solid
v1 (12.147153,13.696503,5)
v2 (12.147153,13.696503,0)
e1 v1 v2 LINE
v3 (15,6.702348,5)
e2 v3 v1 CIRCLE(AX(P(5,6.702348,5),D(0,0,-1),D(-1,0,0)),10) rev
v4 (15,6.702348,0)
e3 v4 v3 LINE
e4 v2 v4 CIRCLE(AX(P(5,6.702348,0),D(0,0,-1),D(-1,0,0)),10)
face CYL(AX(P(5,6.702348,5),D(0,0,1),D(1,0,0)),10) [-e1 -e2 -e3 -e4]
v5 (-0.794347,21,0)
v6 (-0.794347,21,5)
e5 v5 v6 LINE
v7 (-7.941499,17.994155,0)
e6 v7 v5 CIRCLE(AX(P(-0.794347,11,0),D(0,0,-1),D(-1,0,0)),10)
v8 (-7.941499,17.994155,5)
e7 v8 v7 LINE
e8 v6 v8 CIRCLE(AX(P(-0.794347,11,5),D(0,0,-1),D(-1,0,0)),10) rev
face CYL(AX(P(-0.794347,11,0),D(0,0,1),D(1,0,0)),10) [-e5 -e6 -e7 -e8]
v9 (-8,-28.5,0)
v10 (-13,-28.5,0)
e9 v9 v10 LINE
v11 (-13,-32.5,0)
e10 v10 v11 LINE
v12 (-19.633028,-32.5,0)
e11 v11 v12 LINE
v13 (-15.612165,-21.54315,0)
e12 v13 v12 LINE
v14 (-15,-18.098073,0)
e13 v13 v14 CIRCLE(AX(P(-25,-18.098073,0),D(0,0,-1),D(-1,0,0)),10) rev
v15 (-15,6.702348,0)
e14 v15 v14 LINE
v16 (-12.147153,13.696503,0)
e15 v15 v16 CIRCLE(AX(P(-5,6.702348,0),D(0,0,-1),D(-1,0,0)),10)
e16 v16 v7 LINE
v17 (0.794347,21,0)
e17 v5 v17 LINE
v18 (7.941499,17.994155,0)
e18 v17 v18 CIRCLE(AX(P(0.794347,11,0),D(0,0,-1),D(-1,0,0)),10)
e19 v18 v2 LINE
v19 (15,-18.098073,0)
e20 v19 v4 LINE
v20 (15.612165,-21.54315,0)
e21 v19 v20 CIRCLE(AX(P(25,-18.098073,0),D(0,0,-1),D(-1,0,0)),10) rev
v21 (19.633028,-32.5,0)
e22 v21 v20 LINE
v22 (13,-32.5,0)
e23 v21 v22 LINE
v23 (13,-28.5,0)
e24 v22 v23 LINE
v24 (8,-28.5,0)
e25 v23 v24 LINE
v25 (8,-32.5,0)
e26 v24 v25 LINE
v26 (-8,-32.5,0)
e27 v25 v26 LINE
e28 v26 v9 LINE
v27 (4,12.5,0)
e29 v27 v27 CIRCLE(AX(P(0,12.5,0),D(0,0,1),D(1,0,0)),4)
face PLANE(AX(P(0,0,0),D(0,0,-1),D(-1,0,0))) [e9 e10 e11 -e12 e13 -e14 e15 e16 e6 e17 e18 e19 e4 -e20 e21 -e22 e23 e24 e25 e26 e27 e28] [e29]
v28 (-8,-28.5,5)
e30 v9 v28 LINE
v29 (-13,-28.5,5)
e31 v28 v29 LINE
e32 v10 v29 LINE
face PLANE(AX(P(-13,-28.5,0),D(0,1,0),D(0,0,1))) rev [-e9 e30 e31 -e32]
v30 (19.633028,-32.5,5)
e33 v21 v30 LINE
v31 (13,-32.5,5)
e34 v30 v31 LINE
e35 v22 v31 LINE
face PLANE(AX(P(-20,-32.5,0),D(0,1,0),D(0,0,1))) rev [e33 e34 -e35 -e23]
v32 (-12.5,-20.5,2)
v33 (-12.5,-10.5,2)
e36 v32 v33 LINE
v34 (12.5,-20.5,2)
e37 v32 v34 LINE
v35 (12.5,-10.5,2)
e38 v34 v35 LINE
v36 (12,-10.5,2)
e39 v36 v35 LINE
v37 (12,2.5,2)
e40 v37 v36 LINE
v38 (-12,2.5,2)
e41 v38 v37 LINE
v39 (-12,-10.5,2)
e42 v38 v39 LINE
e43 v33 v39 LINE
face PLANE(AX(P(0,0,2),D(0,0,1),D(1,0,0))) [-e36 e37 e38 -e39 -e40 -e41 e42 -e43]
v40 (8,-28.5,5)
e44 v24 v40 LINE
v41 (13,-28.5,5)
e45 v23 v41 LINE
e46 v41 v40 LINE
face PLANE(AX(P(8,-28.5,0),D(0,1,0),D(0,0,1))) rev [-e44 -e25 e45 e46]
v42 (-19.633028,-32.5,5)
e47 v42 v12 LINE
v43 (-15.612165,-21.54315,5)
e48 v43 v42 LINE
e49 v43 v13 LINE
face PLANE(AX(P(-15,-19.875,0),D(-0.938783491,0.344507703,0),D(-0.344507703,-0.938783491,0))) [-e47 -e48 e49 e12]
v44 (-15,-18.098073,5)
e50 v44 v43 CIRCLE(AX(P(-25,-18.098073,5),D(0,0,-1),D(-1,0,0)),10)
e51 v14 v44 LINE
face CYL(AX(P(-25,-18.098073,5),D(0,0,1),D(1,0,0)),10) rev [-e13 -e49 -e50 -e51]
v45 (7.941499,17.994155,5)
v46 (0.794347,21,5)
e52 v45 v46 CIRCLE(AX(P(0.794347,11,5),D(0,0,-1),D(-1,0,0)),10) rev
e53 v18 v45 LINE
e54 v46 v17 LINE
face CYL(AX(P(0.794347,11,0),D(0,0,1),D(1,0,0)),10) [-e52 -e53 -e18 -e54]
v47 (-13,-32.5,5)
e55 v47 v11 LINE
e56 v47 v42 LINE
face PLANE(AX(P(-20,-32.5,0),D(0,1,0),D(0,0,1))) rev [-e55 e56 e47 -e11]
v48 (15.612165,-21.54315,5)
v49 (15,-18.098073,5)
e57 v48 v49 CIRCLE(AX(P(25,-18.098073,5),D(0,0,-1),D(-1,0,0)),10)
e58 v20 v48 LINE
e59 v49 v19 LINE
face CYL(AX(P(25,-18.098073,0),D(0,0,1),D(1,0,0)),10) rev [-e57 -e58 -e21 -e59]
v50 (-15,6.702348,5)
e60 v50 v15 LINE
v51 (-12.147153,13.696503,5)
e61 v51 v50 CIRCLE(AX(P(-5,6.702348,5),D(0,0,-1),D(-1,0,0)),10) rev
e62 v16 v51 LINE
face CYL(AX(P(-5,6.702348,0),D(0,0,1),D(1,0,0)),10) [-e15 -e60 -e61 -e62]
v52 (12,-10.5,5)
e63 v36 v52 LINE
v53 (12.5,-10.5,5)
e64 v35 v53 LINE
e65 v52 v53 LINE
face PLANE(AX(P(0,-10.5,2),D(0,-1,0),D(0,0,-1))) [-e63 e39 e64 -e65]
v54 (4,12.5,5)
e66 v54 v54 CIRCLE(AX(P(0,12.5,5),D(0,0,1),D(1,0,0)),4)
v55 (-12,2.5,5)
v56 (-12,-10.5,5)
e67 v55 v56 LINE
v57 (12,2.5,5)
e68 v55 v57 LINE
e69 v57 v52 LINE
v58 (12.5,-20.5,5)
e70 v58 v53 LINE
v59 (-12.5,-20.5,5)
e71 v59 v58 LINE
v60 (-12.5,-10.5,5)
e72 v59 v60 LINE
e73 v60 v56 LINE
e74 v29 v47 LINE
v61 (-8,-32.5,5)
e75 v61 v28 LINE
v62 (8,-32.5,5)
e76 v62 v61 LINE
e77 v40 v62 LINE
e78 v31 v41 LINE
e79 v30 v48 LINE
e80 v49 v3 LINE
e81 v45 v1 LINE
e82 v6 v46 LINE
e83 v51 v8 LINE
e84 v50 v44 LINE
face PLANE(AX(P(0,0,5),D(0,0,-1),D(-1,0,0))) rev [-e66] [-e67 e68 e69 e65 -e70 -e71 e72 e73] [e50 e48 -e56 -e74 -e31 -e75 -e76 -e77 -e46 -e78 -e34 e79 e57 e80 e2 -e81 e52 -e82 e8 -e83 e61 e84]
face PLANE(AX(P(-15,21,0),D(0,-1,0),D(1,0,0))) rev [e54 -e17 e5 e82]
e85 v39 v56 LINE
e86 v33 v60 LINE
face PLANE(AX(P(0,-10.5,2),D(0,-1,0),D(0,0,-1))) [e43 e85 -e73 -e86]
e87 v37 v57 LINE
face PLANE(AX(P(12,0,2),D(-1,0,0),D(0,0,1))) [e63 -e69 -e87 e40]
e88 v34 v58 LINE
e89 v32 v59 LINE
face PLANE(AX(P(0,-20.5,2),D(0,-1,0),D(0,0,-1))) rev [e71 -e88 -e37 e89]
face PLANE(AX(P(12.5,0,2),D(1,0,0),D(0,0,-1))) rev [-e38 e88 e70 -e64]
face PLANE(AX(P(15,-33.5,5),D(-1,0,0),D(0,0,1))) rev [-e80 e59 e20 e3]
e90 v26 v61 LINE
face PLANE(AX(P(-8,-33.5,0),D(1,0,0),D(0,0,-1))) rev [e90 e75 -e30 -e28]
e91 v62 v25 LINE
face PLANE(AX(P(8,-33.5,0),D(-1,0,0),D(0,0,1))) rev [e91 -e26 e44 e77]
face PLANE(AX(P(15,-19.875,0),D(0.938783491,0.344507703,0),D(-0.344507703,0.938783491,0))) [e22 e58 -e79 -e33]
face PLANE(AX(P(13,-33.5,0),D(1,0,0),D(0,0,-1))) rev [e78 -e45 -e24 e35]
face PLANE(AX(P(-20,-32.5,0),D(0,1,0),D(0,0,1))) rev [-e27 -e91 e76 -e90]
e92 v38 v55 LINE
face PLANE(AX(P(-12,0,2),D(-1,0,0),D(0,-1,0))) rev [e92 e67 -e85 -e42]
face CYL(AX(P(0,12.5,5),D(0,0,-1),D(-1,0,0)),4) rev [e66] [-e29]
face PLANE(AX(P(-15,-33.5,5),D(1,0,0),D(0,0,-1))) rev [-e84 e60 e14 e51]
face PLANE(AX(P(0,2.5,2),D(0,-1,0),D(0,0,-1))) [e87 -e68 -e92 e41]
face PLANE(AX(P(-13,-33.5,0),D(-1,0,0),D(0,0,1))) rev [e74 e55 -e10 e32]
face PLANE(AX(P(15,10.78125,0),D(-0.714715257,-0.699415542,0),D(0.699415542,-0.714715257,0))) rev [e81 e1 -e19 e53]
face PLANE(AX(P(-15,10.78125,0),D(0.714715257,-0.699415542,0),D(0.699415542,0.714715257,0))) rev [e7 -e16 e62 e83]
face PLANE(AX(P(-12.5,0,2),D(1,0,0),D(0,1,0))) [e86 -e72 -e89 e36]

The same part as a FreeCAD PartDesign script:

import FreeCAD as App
import Part
import Sketcher

V = App.Vector
Q = App.Units.Quantity


def edges_at(feature, points):
    """Names of the edges that pass closest to the given points."""
    edges = feature.Shape.Edges
    near = lambda p: min(range(len(edges)), key=lambda i: edges[i].distToShape(Part.Vertex(*p))[0])
    return sorted({f"Edge{near(p) + 1}" for p in points})

doc = App.newDocument("Part")
body = doc.addObject("PartDesign::Body", "Body")

sketch1 = body.newObject("Sketcher::SketchObject", "Sketch")
sketch1.AttachmentSupport = (doc.getObject("XY_Plane"), [""])
sketch1.MapMode = "FlatFace"
sketch1.addGeometry(Part.LineSegment(V(-15, 33.5, 0), V(-15, -33.5, 0)), False)
sketch1.addGeometry(Part.LineSegment(V(-15, -33.5, 0), V(15, -33.5, 0)), False)
sketch1.addGeometry(Part.LineSegment(V(15, -33.5, 0), V(15, 33.5, 0)), False)
sketch1.addGeometry(Part.LineSegment(V(15, 33.5, 0), V(-15, 33.5, 0)), False)
sketch1.addGeometry(Part.Circle(V(0, 12.5, 0), V(0, 0, 1), 4), False)
sketch1.addConstraint(Sketcher.Constraint("Coincident", 0, 2, 1, 1))
sketch1.addConstraint(Sketcher.Constraint("Coincident", 1, 2, 2, 1))
sketch1.addConstraint(Sketcher.Constraint("Coincident", 2, 2, 3, 1))
sketch1.addConstraint(Sketcher.Constraint("Coincident", 3, 2, 0, 1))
sketch1.addConstraint(Sketcher.Constraint("Vertical", 0))
sketch1.addConstraint(Sketcher.Constraint("Horizontal", 1))
sketch1.addConstraint(Sketcher.Constraint("Vertical", 2))
sketch1.addConstraint(Sketcher.Constraint("Horizontal", 3))
sketch1.addConstraint(Sketcher.Constraint("Symmetric", 0, 2, 2, 2, -1, 1))
sketch1.addConstraint(Sketcher.Constraint("PointOnObject", 4, 3, -2))
sketch1.addConstraint(Sketcher.Constraint("Diameter", 4, Q("8 mm")))
sketch1.addConstraint(Sketcher.Constraint("DistanceX", 1, 1, 1, 2, Q("30 mm")))
sketch1.addConstraint(Sketcher.Constraint("DistanceY", 0, 2, 0, 1, Q("67 mm")))
sketch1.addConstraint(Sketcher.Constraint("DistanceY", 0, 2, 4, 3, Q("46 mm")))
pad1 = body.newObject("PartDesign::Pad", "Pad")
pad1.Profile = sketch1
pad1.Length = 5

sketch2 = body.newObject("Sketcher::SketchObject", "Sketch001")
sketch2.AttachmentSupport = (doc.getObject("XY_Plane"), [""])
sketch2.MapMode = "FlatFace"
sketch2.AttachmentOffset = App.Placement(V(0, 0, 5), App.Rotation())
sketch2.addGeometry(Part.LineSegment(V(-15, 33.5, 0), V(-15, 21, 0)), False)
sketch2.addGeometry(Part.LineSegment(V(-15, 21, 0), V(15, 21, 0)), False)
sketch2.addGeometry(Part.LineSegment(V(15, 21, 0), V(15, 33.5, 0)), False)
sketch2.addGeometry(Part.LineSegment(V(15, 33.5, 0), V(-15, 33.5, 0)), False)
sketch2.addConstraint(Sketcher.Constraint("Coincident", 0, 2, 1, 1))
sketch2.addConstraint(Sketcher.Constraint("Coincident", 1, 2, 2, 1))
sketch2.addConstraint(Sketcher.Constraint("Coincident", 2, 2, 3, 1))
sketch2.addConstraint(Sketcher.Constraint("Coincident", 3, 2, 0, 1))
sketch2.addConstraint(Sketcher.Constraint("Vertical", 0))
sketch2.addConstraint(Sketcher.Constraint("Horizontal", 1))
sketch2.addConstraint(Sketcher.Constraint("Vertical", 2))
sketch2.addConstraint(Sketcher.Constraint("Horizontal", 3))
sketch2.addConstraint(Sketcher.Constraint("DistanceX", 1, 1, 1, 2, Q("30 mm")))
sketch2.addConstraint(Sketcher.Constraint("DistanceY", 0, 2, 0, 1, Q("12.5 mm")))
sketch2.addConstraint(Sketcher.Constraint("DistanceX", 0, 2, -1, 1, Q("15 mm")))
sketch2.addConstraint(Sketcher.Constraint("DistanceY", -1, 1, 0, 2, Q("21 mm")))
pocket1 = body.newObject("PartDesign::Pocket", "Pocket")
pocket1.Profile = sketch2
pocket1.Length = 5

sketch3 = body.newObject("Sketcher::SketchObject", "Sketch002")
sketch3.AttachmentSupport = (doc.getObject("XY_Plane"), [""])
sketch3.MapMode = "FlatFace"
sketch3.AttachmentOffset = App.Placement(V(0, 0, 5), App.Rotation())
sketch3.addGeometry(Part.LineSegment(V(-13, -28.5, 0), V(-13, -33.5, 0)), False)
sketch3.addGeometry(Part.LineSegment(V(-13, -33.5, 0), V(-8, -33.5, 0)), False)
sketch3.addGeometry(Part.LineSegment(V(-8, -33.5, 0), V(-8, -28.5, 0)), False)
sketch3.addGeometry(Part.LineSegment(V(-8, -28.5, 0), V(-13, -28.5, 0)), False)
sketch3.addGeometry(Part.LineSegment(V(8, -28.5, 0), V(8, -33.5, 0)), False)
sketch3.addGeometry(Part.LineSegment(V(8, -33.5, 0), V(13, -33.5, 0)), False)
sketch3.addGeometry(Part.LineSegment(V(13, -33.5, 0), V(13, -28.5, 0)), False)
sketch3.addGeometry(Part.LineSegment(V(13, -28.5, 0), V(8, -28.5, 0)), False)
sketch3.addConstraint(Sketcher.Constraint("Coincident", 0, 2, 1, 1))
sketch3.addConstraint(Sketcher.Constraint("Coincident", 1, 2, 2, 1))
sketch3.addConstraint(Sketcher.Constraint("Coincident", 2, 2, 3, 1))
sketch3.addConstraint(Sketcher.Constraint("Coincident", 3, 2, 0, 1))
sketch3.addConstraint(Sketcher.Constraint("Coincident", 4, 2, 5, 1))
sketch3.addConstraint(Sketcher.Constraint("Coincident", 5, 2, 6, 1))
sketch3.addConstraint(Sketcher.Constraint("Coincident", 6, 2, 7, 1))
sketch3.addConstraint(Sketcher.Constraint("Coincident", 7, 2, 4, 1))
sketch3.addConstraint(Sketcher.Constraint("Vertical", 0))
sketch3.addConstraint(Sketcher.Constraint("Horizontal", 1))
sketch3.addConstraint(Sketcher.Constraint("Vertical", 2))
sketch3.addConstraint(Sketcher.Constraint("Horizontal", 3))
sketch3.addConstraint(Sketcher.Constraint("Vertical", 4))
sketch3.addConstraint(Sketcher.Constraint("Horizontal", 5))
sketch3.addConstraint(Sketcher.Constraint("Vertical", 6))
sketch3.addConstraint(Sketcher.Constraint("Horizontal", 7))
sketch3.addConstraint(Sketcher.Constraint("Symmetric", 1, 2, 4, 2, -2))
sketch3.addConstraint(Sketcher.Constraint("Symmetric", 3, 2, 6, 2, -2))
sketch3.addConstraint(Sketcher.Constraint("Equal", 7, 0))
sketch3.addConstraint(Sketcher.Constraint("DistanceX", 1, 1, 1, 2, Q("5 mm")))
sketch3.addConstraint(Sketcher.Constraint("DistanceX", 0, 2, -1, 1, Q("13 mm")))
sketch3.addConstraint(Sketcher.Constraint("DistanceY", 0, 2, -1, 1, Q("33.5 mm")))
pocket2 = body.newObject("PartDesign::Pocket", "Pocket001")
pocket2.Profile = sketch3
pocket2.Type = "ThroughAll"

sketch4 = body.newObject("Sketcher::SketchObject", "Sketch003")
sketch4.AttachmentSupport = (doc.getObject("XY_Plane"), [""])
sketch4.MapMode = "FlatFace"
sketch4.AttachmentOffset = App.Placement(V(0, 0, 5), App.Rotation())
sketch4.addGeometry(Part.LineSegment(V(-15, -19.875, 0), V(-20, -33.5, 0)), False)
sketch4.addGeometry(Part.LineSegment(V(-20, -33.5, 0), V(-15, -33.5, 0)), False)
sketch4.addGeometry(Part.LineSegment(V(-15, -33.5, 0), V(-15, -19.875, 0)), False)
sketch4.addGeometry(Part.LineSegment(V(20, -33.5, 0), V(15, -19.875, 0)), False)
sketch4.addGeometry(Part.LineSegment(V(15, -19.875, 0), V(15, -33.5, 0)), False)
sketch4.addGeometry(Part.LineSegment(V(15, -33.5, 0), V(20, -33.5, 0)), False)
sketch4.addConstraint(Sketcher.Constraint("Coincident", 0, 2, 1, 1))
sketch4.addConstraint(Sketcher.Constraint("Coincident", 1, 2, 2, 1))
sketch4.addConstraint(Sketcher.Constraint("Coincident", 2, 2, 0, 1))
sketch4.addConstraint(Sketcher.Constraint("Coincident", 3, 2, 4, 1))
sketch4.addConstraint(Sketcher.Constraint("Coincident", 4, 2, 5, 1))
sketch4.addConstraint(Sketcher.Constraint("Coincident", 5, 2, 3, 1))
sketch4.addConstraint(Sketcher.Constraint("Horizontal", 1))
sketch4.addConstraint(Sketcher.Constraint("Vertical", 2))
sketch4.addConstraint(Sketcher.Constraint("Vertical", 4))
sketch4.addConstraint(Sketcher.Constraint("Horizontal", 5))
sketch4.addConstraint(Sketcher.Constraint("Symmetric", 2, 2, 3, 2, -2))
sketch4.addConstraint(Sketcher.Constraint("Symmetric", 0, 2, 5, 2, -2))
sketch4.addConstraint(Sketcher.Constraint("DistanceX", 1, 1, 1, 2, Q("5 mm")))
sketch4.addConstraint(Sketcher.Constraint("DistanceX", 0, 2, -1, 1, Q("20 mm")))
sketch4.addConstraint(Sketcher.Constraint("DistanceY", 0, 2, -1, 1, Q("33.5 mm")))
sketch4.addConstraint(Sketcher.Constraint("DistanceY", 2, 1, 2, 2, Q("13.625 mm")))
pad2 = body.newObject("PartDesign::Pad", "Pad001")
pad2.Profile = sketch4
pad2.Length = 5
pad2.Reversed = True

sketch5 = body.newObject("Sketcher::SketchObject", "Sketch004")
sketch5.AttachmentSupport = (doc.getObject("XY_Plane"), [""])
sketch5.MapMode = "FlatFace"
sketch5.AttachmentOffset = App.Placement(V(0, 0, 5), App.Rotation())
sketch5.addGeometry(Part.LineSegment(V(-15, 10.78125, 0), V(-5, 21, 0)), False)
sketch5.addGeometry(Part.LineSegment(V(-5, 21, 0), V(-15, 21, 0)), False)
sketch5.addGeometry(Part.LineSegment(V(-15, 21, 0), V(-15, 10.78125, 0)), False)
sketch5.addGeometry(Part.LineSegment(V(5, 21, 0), V(15, 10.78125, 0)), False)
sketch5.addGeometry(Part.LineSegment(V(15, 10.78125, 0), V(15, 21, 0)), False)
sketch5.addGeometry(Part.LineSegment(V(15, 21, 0), V(5, 21, 0)), False)
sketch5.addConstraint(Sketcher.Constraint("Coincident", 0, 2, 1, 1))
sketch5.addConstraint(Sketcher.Constraint("Coincident", 1, 2, 2, 1))
sketch5.addConstraint(Sketcher.Constraint("Coincident", 2, 2, 0, 1))
sketch5.addConstraint(Sketcher.Constraint("Coincident", 3, 2, 4, 1))
sketch5.addConstraint(Sketcher.Constraint("Coincident", 4, 2, 5, 1))
sketch5.addConstraint(Sketcher.Constraint("Coincident", 5, 2, 3, 1))
sketch5.addConstraint(Sketcher.Constraint("Horizontal", 1))
sketch5.addConstraint(Sketcher.Constraint("Vertical", 2))
sketch5.addConstraint(Sketcher.Constraint("Vertical", 4))
sketch5.addConstraint(Sketcher.Constraint("Horizontal", 5))
sketch5.addConstraint(Sketcher.Constraint("Symmetric", 2, 2, 3, 2, -2))
sketch5.addConstraint(Sketcher.Constraint("Symmetric", 0, 2, 5, 2, -2))
sketch5.addConstraint(Sketcher.Constraint("DistanceX", 1, 2, 1, 1, Q("10 mm")))
sketch5.addConstraint(Sketcher.Constraint("DistanceX", 0, 2, -1, 1, Q("5 mm")))
sketch5.addConstraint(Sketcher.Constraint("DistanceY", -1, 1, 0, 2, Q("21 mm")))
sketch5.addConstraint(Sketcher.Constraint("DistanceY", 2, 2, 2, 1, Q("10.21875 mm")))
pocket3 = body.newObject("PartDesign::Pocket", "Pocket002")
pocket3.Profile = sketch5
pocket3.Type = "ThroughAll"

sketch6 = body.newObject("Sketcher::SketchObject", "Sketch005")
sketch6.AttachmentSupport = (doc.getObject("XY_Plane"), [""])
sketch6.MapMode = "FlatFace"
sketch6.AttachmentOffset = App.Placement(V(0, 0, 5), App.Rotation())
sketch6.addGeometry(Part.LineSegment(V(-20, -32.5, 0), V(-20, -33.5, 0)), False)
sketch6.addGeometry(Part.LineSegment(V(-20, -33.5, 0), V(21.113396, -33.5, 0)), False)
sketch6.addGeometry(Part.LineSegment(V(21.113396, -33.5, 0), V(21.113396, -32.5, 0)), False)
sketch6.addGeometry(Part.LineSegment(V(21.113396, -32.5, 0), V(-20, -32.5, 0)), False)
sketch6.addConstraint(Sketcher.Constraint("Coincident", 0, 2, 1, 1))
sketch6.addConstraint(Sketcher.Constraint("Coincident", 1, 2, 2, 1))
sketch6.addConstraint(Sketcher.Constraint("Coincident", 2, 2, 3, 1))
sketch6.addConstraint(Sketcher.Constraint("Coincident", 3, 2, 0, 1))
sketch6.addConstraint(Sketcher.Constraint("Vertical", 0))
sketch6.addConstraint(Sketcher.Constraint("Horizontal", 1))
sketch6.addConstraint(Sketcher.Constraint("Vertical", 2))
sketch6.addConstraint(Sketcher.Constraint("Horizontal", 3))
sketch6.addConstraint(Sketcher.Constraint("DistanceY", 0, 2, 0, 1, Q("1 mm")))
sketch6.addConstraint(Sketcher.Constraint("DistanceX", 0, 2, -1, 1, Q("20 mm")))
sketch6.addConstraint(Sketcher.Constraint("DistanceY", 0, 2, -1, 1, Q("33.5 mm")))
sketch6.addConstraint(Sketcher.Constraint("DistanceX", 1, 1, 1, 2, Q("41.113396 mm")))
pocket4 = body.newObject("PartDesign::Pocket", "Pocket003")
pocket4.Profile = sketch6
pocket4.Type = "ThroughAll"
doc.recompute()

fillet = body.newObject("PartDesign::Fillet", "Fillet")
fillet.Base = (pocket4, edges_at(pocket4, [
    (-15, 10.781, 2.5),
    (-5, 21, 2.5),
    (15, 10.781, 2.5),
    (5, 21, 2.5),
]))
fillet.Radius = 10
doc.recompute()

fillet2 = body.newObject("PartDesign::Fillet", "Fillet001")
fillet2.Base = (fillet, edges_at(fillet, [(-15, -19.875, 2.5), (15, -19.875, 2.5)]))
fillet2.Radius = 10

sketch7 = body.newObject("Sketcher::SketchObject", "Sketch006")
sketch7.AttachmentSupport = (doc.getObject("XY_Plane"), [""])
sketch7.MapMode = "FlatFace"
sketch7.AttachmentOffset = App.Placement(V(0, 0, 5), App.Rotation())
sketch7.addGeometry(Part.LineSegment(V(-12, 2.5, 0), V(-12, -10.5, 0)), False)
sketch7.addGeometry(Part.LineSegment(V(-12, -10.5, 0), V(-12.5, -10.5, 0)), False)
sketch7.addGeometry(Part.LineSegment(V(-12.5, -10.5, 0), V(-12.5, -20.5, 0)), False)
sketch7.addGeometry(Part.LineSegment(V(-12.5, -20.5, 0), V(12.5, -20.5, 0)), False)
sketch7.addGeometry(Part.LineSegment(V(12.5, -20.5, 0), V(12.5, -10.5, 0)), False)
sketch7.addGeometry(Part.LineSegment(V(12.5, -10.5, 0), V(12, -10.5, 0)), False)
sketch7.addGeometry(Part.LineSegment(V(12, -10.5, 0), V(12, 2.5, 0)), False)
sketch7.addGeometry(Part.LineSegment(V(12, 2.5, 0), V(-12, 2.5, 0)), False)
sketch7.addConstraint(Sketcher.Constraint("Coincident", 0, 2, 1, 1))
sketch7.addConstraint(Sketcher.Constraint("Coincident", 1, 2, 2, 1))
sketch7.addConstraint(Sketcher.Constraint("Coincident", 2, 2, 3, 1))
sketch7.addConstraint(Sketcher.Constraint("Coincident", 3, 2, 4, 1))
sketch7.addConstraint(Sketcher.Constraint("Coincident", 4, 2, 5, 1))
sketch7.addConstraint(Sketcher.Constraint("Coincident", 5, 2, 6, 1))
sketch7.addConstraint(Sketcher.Constraint("Coincident", 6, 2, 7, 1))
sketch7.addConstraint(Sketcher.Constraint("Coincident", 7, 2, 0, 1))
sketch7.addConstraint(Sketcher.Constraint("Vertical", 0))
sketch7.addConstraint(Sketcher.Constraint("Horizontal", 1))
sketch7.addConstraint(Sketcher.Constraint("Vertical", 2))
sketch7.addConstraint(Sketcher.Constraint("Horizontal", 3))
sketch7.addConstraint(Sketcher.Constraint("Vertical", 4))
sketch7.addConstraint(Sketcher.Constraint("Horizontal", 5))
sketch7.addConstraint(Sketcher.Constraint("Vertical", 6))
sketch7.addConstraint(Sketcher.Constraint("Horizontal", 7))
sketch7.addConstraint(Sketcher.Constraint("Symmetric", 1, 2, 4, 2, -2))
sketch7.addConstraint(Sketcher.Constraint("Equal", 1, 5))
sketch7.addConstraint(Sketcher.Constraint("DistanceX", 3, 1, 3, 2, Q("25 mm")))
sketch7.addConstraint(Sketcher.Constraint("DistanceX", 7, 2, 7, 1, Q("24 mm")))
sketch7.addConstraint(Sketcher.Constraint("DistanceY", 0, 2, 0, 1, Q("13 mm")))
sketch7.addConstraint(Sketcher.Constraint("DistanceY", 2, 2, 2, 1, Q("10 mm")))
sketch7.addConstraint(Sketcher.Constraint("DistanceY", 0, 2, -1, 1, Q("10.5 mm")))
pocket5 = body.newObject("PartDesign::Pocket", "Pocket004")
pocket5.Profile = sketch7
pocket5.Length = 3

doc.recompute()
